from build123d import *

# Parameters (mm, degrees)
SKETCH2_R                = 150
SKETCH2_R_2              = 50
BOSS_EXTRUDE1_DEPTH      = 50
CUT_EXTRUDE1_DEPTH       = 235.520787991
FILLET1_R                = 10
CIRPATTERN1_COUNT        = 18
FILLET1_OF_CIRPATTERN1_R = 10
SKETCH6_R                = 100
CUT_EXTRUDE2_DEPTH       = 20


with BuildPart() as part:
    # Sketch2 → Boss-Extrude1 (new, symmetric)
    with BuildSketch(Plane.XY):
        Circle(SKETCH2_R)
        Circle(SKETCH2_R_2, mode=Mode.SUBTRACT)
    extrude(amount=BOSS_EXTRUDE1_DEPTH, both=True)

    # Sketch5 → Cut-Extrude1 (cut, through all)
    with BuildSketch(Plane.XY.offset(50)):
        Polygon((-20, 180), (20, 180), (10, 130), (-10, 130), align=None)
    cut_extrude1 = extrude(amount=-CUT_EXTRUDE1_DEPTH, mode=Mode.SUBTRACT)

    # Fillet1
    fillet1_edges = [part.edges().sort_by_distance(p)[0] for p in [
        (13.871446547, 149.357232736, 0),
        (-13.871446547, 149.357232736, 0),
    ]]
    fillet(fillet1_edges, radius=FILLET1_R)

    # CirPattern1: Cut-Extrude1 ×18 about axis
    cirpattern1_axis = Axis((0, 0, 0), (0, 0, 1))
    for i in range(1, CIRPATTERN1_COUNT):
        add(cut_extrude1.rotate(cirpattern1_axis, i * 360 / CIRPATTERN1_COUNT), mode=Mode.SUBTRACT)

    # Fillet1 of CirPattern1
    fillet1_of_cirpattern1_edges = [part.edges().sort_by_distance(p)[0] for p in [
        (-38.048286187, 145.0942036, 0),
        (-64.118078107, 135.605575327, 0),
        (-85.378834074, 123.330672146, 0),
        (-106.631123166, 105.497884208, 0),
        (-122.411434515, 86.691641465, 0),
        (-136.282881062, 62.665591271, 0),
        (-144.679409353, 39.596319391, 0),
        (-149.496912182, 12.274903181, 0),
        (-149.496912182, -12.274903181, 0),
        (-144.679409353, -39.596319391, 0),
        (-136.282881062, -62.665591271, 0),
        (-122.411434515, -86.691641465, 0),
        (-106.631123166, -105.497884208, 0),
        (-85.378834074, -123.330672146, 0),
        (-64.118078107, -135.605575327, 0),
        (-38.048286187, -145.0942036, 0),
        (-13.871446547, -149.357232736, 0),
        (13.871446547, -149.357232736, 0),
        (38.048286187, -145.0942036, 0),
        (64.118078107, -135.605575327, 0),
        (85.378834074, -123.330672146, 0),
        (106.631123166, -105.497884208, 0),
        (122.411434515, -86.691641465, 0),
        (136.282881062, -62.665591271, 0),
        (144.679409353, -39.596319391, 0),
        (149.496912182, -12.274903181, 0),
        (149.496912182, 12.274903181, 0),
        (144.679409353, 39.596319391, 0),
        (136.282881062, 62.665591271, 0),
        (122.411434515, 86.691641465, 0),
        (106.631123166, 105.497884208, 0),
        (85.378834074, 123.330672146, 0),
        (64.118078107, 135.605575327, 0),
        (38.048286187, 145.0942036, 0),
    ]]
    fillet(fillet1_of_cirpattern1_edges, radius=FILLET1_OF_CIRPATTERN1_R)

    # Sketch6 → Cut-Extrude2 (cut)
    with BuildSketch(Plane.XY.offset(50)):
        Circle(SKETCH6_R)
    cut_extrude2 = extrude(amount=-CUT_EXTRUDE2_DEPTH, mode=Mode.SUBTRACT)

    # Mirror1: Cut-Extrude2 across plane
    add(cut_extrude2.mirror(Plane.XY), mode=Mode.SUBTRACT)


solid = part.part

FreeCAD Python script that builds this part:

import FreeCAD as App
import Part
import Sketcher
Q = App.Units.Quantity


def edges_at(feature, points):
    """Names of the edges that pass closest to the given points."""
    edges = feature.Shape.Edges
    near = lambda p: min(range(len(edges)), key=lambda i: edges[i].distToShape(Part.Vertex(*p))[0])
    return sorted({f"Edge{near(p) + 1}" for p in points})

doc = App.newDocument("Part")
body = doc.addObject("PartDesign::Body", "Body")

sketch1 = body.newObject("Sketcher::SketchObject", "Sketch")
sketch1.AttachmentSupport = (doc.getObject("XY_Plane"), [""])
sketch1.MapMode = "FlatFace"
sketch1.addGeometry(Part.Circle(App.Vector(0, 0, 0), App.Vector(0, 0, 1), 150), False)
sketch1.addGeometry(Part.Circle(App.Vector(0, 0, 0), App.Vector(0, 0, 1), 50), False)
sketch1.addConstraint(Sketcher.Constraint("Coincident", 0, 3, -1, 1))
sketch1.addConstraint(Sketcher.Constraint("Coincident", 1, 3, -1, 1))
sketch1.addConstraint(Sketcher.Constraint("Diameter", 0, Q("300 mm")))
sketch1.addConstraint(Sketcher.Constraint("Diameter", 1, Q("100 mm")))
pad1 = body.newObject("PartDesign::Pad", "Pad")
pad1.Profile = sketch1
pad1.Length = 100
pad1.Midplane = True

sketch2 = body.newObject("Sketcher::SketchObject", "Sketch001")
sketch2.AttachmentSupport = (doc.getObject("XY_Plane"), [""])
sketch2.MapMode = "FlatFace"
sketch2.AttachmentOffset = App.Placement(App.Vector(0, 0, 50), App.Rotation())
sketch2.addGeometry(Part.LineSegment(App.Vector(20, 180, 0), App.Vector(-20, 180, 0)), False)
sketch2.addGeometry(Part.LineSegment(App.Vector(-20, 180, 0), App.Vector(-10, 130, 0)), False)
sketch2.addGeometry(Part.LineSegment(App.Vector(-10, 130, 0), App.Vector(10, 130, 0)), False)
sketch2.addGeometry(Part.LineSegment(App.Vector(10, 130, 0), App.Vector(20, 180, 0)), False)
sketch2.addConstraint(Sketcher.Constraint("Coincident", 0, 2, 1, 1))
sketch2.addConstraint(Sketcher.Constraint("Coincident", 1, 2, 2, 1))
sketch2.addConstraint(Sketcher.Constraint("Coincident", 2, 2, 3, 1))
sketch2.addConstraint(Sketcher.Constraint("Coincident", 3, 2, 0, 1))
sketch2.addConstraint(Sketcher.Constraint("Horizontal", 0))
sketch2.addConstraint(Sketcher.Constraint("Horizontal", 2))
sketch2.addConstraint(Sketcher.Constraint("Equal", 1, 3))
sketch2.addConstraint(Sketcher.Constraint("DistanceX", 0, 2, 0, 1, Q("40 mm")))
sketch2.addConstraint(Sketcher.Constraint("DistanceX", 2, 1, 2, 2, Q("20 mm")))
sketch2.addConstraint(Sketcher.Constraint("DistanceX", 0, 2, -1, 1, Q("20 mm")))
sketch2.addConstraint(Sketcher.Constraint("DistanceY", -1, 1, 0, 2, Q("180 mm")))
sketch2.addConstraint(Sketcher.Constraint("DistanceY", -1, 1, 1, 2, Q("130 mm")))
pocket1 = body.newObject("PartDesign::Pocket", "Pocket")
pocket1.Profile = sketch2
pocket1.Type = "ThroughAll"
doc.recompute()

fillet = body.newObject("PartDesign::Fillet", "Fillet")
fillet.Base = (pocket1, edges_at(pocket1, [(13.871, 149.357, 0), (-13.871, 149.357, 0)]))
fillet.Radius = 10
doc.recompute()

polarpattern = body.newObject("PartDesign::PolarPattern", "PolarPattern")
polarpattern.Originals = [pocket1]
polarpattern.Axis = (doc.getObject("Z_Axis"), [""])
polarpattern.Angle = 360
polarpattern.Occurrences = 18
body.Tip = polarpattern
doc.recompute()

fillet2 = body.newObject("PartDesign::Fillet", "Fillet001")
fillet2.Base = (polarpattern, edges_at(polarpattern, [
    (-38.048, 145.094, 0),
    (-64.118, 135.606, 0),
    (-85.379, 123.331, 0),
    (-106.631, 105.498, 0),
    (-122.411, 86.692, 0),
    (-136.283, 62.666, 0),
    (-144.679, 39.596, 0),
    (-149.497, 12.275, 0),
    (-149.497, -12.275, 0),
    (-144.679, -39.596, 0),
    (-136.283, -62.666, 0),
    (-122.411, -86.692, 0),
    (-106.631, -105.498, 0),
    (-85.379, -123.331, 0),
    (-64.118, -135.606, 0),
    (-38.048, -145.094, 0),
    (-13.871, -149.357, 0),
    (13.871, -149.357, 0),
    (38.048, -145.094, 0),
    (64.118, -135.606, 0),
    (85.379, -123.331, 0),
    (106.631, -105.498, 0),
    (122.411, -86.692, 0),
    (136.283, -62.666, 0),
    (144.679, -39.596, 0),
    (149.497, -12.275, 0),
    (149.497, 12.275, 0),
    (144.679, 39.596, 0),
    (136.283, 62.666, 0),
    (122.411, 86.692, 0),
    (106.631, 105.498, 0),
    (85.379, 123.331, 0),
    (64.118, 135.606, 0),
    (38.048, 145.094, 0),
]))
fillet2.Radius = 10

sketch3 = body.newObject("Sketcher::SketchObject", "Sketch002")
sketch3.AttachmentSupport = (doc.getObject("XY_Plane"), [""])
sketch3.MapMode = "FlatFace"
sketch3.AttachmentOffset = App.Placement(App.Vector(0, 0, 50), App.Rotation())
sketch3.addGeometry(Part.Circle(App.Vector(0, 0, 0), App.Vector(0, 0, 1), 100), False)
sketch3.addConstraint(Sketcher.Constraint("Coincident", 0, 3, -1, 1))
sketch3.addConstraint(Sketcher.Constraint("Diameter", 0, Q("200 mm")))
pocket2 = body.newObject("PartDesign::Pocket", "Pocket001")
pocket2.Profile = sketch3
pocket2.Length = 20
doc.recompute()

mirrored = body.newObject("PartDesign::Mirrored", "Mirrored")
mirrored.Originals = [pocket2]
mirrored.MirrorPlane = (doc.getObject("XY_Plane"), [""])
body.Tip = mirrored

doc.recompute()
